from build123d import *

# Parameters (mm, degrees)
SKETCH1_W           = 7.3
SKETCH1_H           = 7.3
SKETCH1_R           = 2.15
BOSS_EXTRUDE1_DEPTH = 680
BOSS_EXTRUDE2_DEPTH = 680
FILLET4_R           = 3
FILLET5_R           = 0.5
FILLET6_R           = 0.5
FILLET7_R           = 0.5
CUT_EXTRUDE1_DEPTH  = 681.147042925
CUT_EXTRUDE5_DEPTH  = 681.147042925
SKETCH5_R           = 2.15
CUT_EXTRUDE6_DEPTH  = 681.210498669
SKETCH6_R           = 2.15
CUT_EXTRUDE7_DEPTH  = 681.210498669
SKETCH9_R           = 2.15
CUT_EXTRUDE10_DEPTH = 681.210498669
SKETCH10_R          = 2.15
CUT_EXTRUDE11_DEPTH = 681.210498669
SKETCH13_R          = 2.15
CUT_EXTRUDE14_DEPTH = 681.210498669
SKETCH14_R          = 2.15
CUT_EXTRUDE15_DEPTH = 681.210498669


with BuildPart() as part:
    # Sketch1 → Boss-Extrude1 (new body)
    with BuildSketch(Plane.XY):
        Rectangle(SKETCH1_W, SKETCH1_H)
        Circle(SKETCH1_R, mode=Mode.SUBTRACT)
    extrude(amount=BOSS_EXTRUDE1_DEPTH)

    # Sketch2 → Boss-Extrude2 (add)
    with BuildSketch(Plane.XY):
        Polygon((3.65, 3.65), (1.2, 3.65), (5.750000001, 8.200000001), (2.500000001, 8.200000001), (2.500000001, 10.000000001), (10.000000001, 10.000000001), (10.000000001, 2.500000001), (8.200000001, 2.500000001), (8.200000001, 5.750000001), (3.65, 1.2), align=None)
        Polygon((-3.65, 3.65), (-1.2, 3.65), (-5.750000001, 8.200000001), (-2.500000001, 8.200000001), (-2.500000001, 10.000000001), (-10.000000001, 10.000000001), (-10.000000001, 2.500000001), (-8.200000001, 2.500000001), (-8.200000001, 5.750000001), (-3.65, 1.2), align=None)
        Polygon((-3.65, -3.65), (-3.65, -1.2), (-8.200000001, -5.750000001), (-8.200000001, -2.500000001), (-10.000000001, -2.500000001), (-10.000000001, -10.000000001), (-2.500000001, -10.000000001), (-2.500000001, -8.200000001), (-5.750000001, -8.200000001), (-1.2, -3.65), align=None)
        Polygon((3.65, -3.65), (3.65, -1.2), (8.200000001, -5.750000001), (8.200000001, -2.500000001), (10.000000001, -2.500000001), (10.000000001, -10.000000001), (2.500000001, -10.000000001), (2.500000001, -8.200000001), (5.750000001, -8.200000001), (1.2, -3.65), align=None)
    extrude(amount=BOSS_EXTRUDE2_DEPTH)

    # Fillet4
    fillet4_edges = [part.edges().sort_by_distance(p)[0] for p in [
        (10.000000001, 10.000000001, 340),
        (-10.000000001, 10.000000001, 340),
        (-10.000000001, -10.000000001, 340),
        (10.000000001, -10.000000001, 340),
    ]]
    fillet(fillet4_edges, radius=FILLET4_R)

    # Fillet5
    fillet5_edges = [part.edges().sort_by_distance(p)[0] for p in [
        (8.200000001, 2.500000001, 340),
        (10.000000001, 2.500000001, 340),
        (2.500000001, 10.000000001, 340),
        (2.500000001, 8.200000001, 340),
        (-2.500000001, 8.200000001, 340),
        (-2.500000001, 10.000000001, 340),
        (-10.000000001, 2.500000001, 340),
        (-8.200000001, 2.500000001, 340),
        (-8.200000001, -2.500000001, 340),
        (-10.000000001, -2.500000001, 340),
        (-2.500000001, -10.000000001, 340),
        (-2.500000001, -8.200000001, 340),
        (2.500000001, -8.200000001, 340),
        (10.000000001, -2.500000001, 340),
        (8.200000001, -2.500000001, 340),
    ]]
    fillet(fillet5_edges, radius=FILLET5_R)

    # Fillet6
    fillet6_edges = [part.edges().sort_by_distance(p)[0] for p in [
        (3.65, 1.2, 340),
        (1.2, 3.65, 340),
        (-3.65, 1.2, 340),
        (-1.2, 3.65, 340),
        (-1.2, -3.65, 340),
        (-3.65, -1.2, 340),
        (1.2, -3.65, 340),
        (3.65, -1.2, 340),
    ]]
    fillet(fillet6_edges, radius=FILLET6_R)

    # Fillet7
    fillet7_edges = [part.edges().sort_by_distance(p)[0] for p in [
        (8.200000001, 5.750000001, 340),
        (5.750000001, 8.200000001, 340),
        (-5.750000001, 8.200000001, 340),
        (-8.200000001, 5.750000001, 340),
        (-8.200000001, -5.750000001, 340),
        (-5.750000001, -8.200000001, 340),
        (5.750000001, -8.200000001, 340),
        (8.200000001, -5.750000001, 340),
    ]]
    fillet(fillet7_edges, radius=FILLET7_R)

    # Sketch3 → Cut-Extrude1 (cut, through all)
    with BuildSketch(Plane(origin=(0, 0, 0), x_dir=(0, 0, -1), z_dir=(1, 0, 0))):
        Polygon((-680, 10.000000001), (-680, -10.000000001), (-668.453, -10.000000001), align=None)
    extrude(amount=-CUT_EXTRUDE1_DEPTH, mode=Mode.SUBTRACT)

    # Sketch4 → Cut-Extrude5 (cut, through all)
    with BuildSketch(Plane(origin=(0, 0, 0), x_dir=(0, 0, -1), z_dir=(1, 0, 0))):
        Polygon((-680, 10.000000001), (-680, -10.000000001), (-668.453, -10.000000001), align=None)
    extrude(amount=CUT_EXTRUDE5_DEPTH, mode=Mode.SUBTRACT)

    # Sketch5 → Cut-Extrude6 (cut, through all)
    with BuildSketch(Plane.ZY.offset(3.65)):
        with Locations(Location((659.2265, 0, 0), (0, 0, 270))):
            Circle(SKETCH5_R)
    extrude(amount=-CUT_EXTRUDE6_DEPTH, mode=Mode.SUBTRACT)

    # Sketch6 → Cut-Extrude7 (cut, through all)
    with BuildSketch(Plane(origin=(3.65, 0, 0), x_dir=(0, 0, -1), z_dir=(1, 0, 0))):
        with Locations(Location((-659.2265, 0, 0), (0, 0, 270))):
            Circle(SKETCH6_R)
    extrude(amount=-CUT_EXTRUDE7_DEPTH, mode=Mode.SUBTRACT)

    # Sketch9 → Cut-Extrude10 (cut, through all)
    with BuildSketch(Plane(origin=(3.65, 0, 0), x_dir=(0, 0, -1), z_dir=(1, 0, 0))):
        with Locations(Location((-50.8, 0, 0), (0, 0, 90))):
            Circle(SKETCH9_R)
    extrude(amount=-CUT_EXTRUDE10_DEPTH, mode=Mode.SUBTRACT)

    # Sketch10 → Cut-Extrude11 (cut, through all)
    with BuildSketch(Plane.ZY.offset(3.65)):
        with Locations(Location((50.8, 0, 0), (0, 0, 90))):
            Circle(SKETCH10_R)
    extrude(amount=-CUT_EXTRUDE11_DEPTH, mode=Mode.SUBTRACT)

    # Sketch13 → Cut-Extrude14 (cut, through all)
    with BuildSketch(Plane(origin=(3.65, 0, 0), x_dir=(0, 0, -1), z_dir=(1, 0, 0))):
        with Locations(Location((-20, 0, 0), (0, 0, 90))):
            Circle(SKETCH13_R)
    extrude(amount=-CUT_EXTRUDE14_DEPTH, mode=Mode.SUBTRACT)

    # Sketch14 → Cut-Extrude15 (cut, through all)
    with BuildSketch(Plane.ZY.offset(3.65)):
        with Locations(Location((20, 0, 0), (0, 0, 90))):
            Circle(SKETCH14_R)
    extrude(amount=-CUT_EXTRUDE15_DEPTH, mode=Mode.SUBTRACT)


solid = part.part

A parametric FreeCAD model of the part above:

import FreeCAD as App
import Part
import Sketcher

V = App.Vector
Q = App.Units.Quantity


def edges_at(feature, points):
    """Names of the edges that pass closest to the given points."""
    edges = feature.Shape.Edges
    near = lambda p: min(range(len(edges)), key=lambda i: edges[i].distToShape(Part.Vertex(*p))[0])
    return sorted({f"Edge{near(p) + 1}" for p in points})


def add_polygon(sketch, points):
    """Adds a closed chain of lines whose ends are joined by coincident constraints."""
    first, n = sketch.GeometryCount, len(points)
    for a, b in zip(points, points[1:] + points[:1]):
        sketch.addGeometry(Part.LineSegment(App.Vector(*a, 0), App.Vector(*b, 0)), False)
    for i in range(n):
        sketch.addConstraint(Sketcher.Constraint("Coincident", first + i, 2, first + (i + 1) % n, 1))

doc = App.newDocument("Part")
params = doc.addObject("Spreadsheet::Sheet", "Params")
for row, (alias, value) in enumerate([
    ("sketch1_diameter", "4.3 mm"),
    ("sketch1_width", "7.3 mm"),
    ("pad1_length", "680 mm"),
    ("sketch2_width", "1.8 mm"),
    ("sketch2_width2", "7.5 mm"),
    ("sketch2_width3", "2.45 mm"),
    ("pad2_length", "680 mm"),
    ("fillet_radius", "3 mm"),
    ("fillet2_radius", "0.5 mm"),
    ("fillet3_radius", "0.5 mm"),
    ("fillet4_radius", "0.5 mm"),
    ("sketch3_width", "20 mm"),
    ("sketch4_width", "20 mm"),
    ("sketch5_diameter", "4.3 mm"),
    ("sketch6_diameter", "4.3 mm"),
    ("sketch7_diameter", "4.3 mm"),
    ("sketch8_diameter", "4.3 mm"),
    ("sketch9_diameter", "4.3 mm"),
    ("sketch10_diameter", "4.3 mm"),
], start=1):
    params.set(f"A{row}", alias)
    params.set(f"B{row}", "=" + value)
    params.setAlias(f"B{row}", alias)

body = doc.addObject("PartDesign::Body", "Body")

# Sketch on XY plane
sketch1 = body.newObject("Sketcher::SketchObject", "Sketch")
sketch1.AttachmentSupport = (doc.getObject("XY_Plane"), [""])
sketch1.MapMode = "FlatFace"
add_polygon(sketch1, [(-3.6, 3.6), (-3.6, -3.6), (3.6, -3.6), (3.6, 3.6)])  # lines 0-3
sketch1.addGeometry(Part.Circle(V(0, 0, 0), V(0, 0, 1), 2.1), False)  # 4
sketch1.addConstraint(Sketcher.Constraint("Vertical", 0))
sketch1.addConstraint(Sketcher.Constraint("Horizontal", 1))
sketch1.addConstraint(Sketcher.Constraint("Vertical", 2))
sketch1.addConstraint(Sketcher.Constraint("Horizontal", 3))
sketch1.addConstraint(Sketcher.Constraint("Coincident", 4, 3, -1, 1))
sketch1.addConstraint(Sketcher.Constraint("Symmetric", 0, 2, 2, 2, -1, 1))
sketch1.addConstraint(Sketcher.Constraint("Equal", 3, 0))
sketch1.addConstraint(Sketcher.Constraint("Diameter", 4, 4.3))
sketch1.addConstraint(Sketcher.Constraint("DistanceX", 1, 1, 1, 2, 7.3))
sketch1.setExpression("Constraints[11]", "Params.sketch1_diameter")
sketch1.setExpression("Constraints[12]", "Params.sketch1_width")
pad1 = body.newObject("PartDesign::Pad", "Pad")
pad1.Profile = sketch1
pad1.setExpression("Length", "Params.pad1_length")

# Sketch on XY plane
sketch2 = body.newObject("Sketcher::SketchObject", "Sketch001")
sketch2.AttachmentSupport = (doc.getObject("XY_Plane"), [""])
sketch2.MapMode = "FlatFace"
add_polygon(sketch2, [(1.2, 3.6), (3.6, 3.6), (3.6, 1.2), (8.2, 5.8), (8.2, 2.5), (10, 2.5), (10, 10), (2.5, 10), (2.5, 8.2), (5.8, 8.2)])  # lines 0-9
add_polygon(sketch2, [(-3.6, 3.6), (-1.2, 3.6), (-5.8, 8.2), (-2.5, 8.2), (-2.5, 10), (-10, 10), (-10, 2.5), (-8.2, 2.5), (-8.2, 5.8), (-3.6, 1.2)])  # lines 10-19
add_polygon(sketch2, [(-3.6, -3.6), (-3.6, -1.2), (-8.2, -5.8), (-8.2, -2.5), (-10, -2.5), (-10, -10), (-2.5, -10), (-2.5, -8.2), (-5.8, -8.2), (-1.2, -3.6)])  # lines 20-29
add_polygon(sketch2, [(3.6, -1.2), (3.6, -3.6), (1.2, -3.6), (5.8, -8.2), (2.5, -8.2), (2.5, -10), (10, -10), (10, -2.5), (8.2, -2.5), (8.2, -5.8)])  # lines 30-39
sketch2.addConstraint(Sketcher.Constraint("Horizontal", 0))
sketch2.addConstraint(Sketcher.Constraint("Vertical", 1))
sketch2.addConstraint(Sketcher.Constraint("Vertical", 3))
sketch2.addConstraint(Sketcher.Constraint("Horizontal", 4))
sketch2.addConstraint(Sketcher.Constraint("Vertical", 5))
sketch2.addConstraint(Sketcher.Constraint("Horizontal", 6))
sketch2.addConstraint(Sketcher.Constraint("Vertical", 7))
sketch2.addConstraint(Sketcher.Constraint("Horizontal", 8))
sketch2.addConstraint(Sketcher.Constraint("Horizontal", 10))
sketch2.addConstraint(Sketcher.Constraint("Horizontal", 12))
sketch2.addConstraint(Sketcher.Constraint("Vertical", 13))
sketch2.addConstraint(Sketcher.Constraint("Horizontal", 14))
sketch2.addConstraint(Sketcher.Constraint("Vertical", 15))
sketch2.addConstraint(Sketcher.Constraint("Horizontal", 16))
sketch2.addConstraint(Sketcher.Constraint("Vertical", 17))
sketch2.addConstraint(Sketcher.Constraint("Vertical", 19))
sketch2.addConstraint(Sketcher.Constraint("Vertical", 20))
sketch2.addConstraint(Sketcher.Constraint("Vertical", 22))
sketch2.addConstraint(Sketcher.Constraint("Horizontal", 23))
sketch2.addConstraint(Sketcher.Constraint("Vertical", 24))
sketch2.addConstraint(Sketcher.Constraint("Horizontal", 25))
sketch2.addConstraint(Sketcher.Constraint("Vertical", 26))
sketch2.addConstraint(Sketcher.Constraint("Horizontal", 27))
sketch2.addConstraint(Sketcher.Constraint("Horizontal", 29))
sketch2.addConstraint(Sketcher.Constraint("Vertical", 30))
sketch2.addConstraint(Sketcher.Constraint("Horizontal", 31))
sketch2.addConstraint(Sketcher.Constraint("Horizontal", 33))
sketch2.addConstraint(Sketcher.Constraint("Vertical", 34))
sketch2.addConstraint(Sketcher.Constraint("Horizontal", 35))
sketch2.addConstraint(Sketcher.Constraint("Vertical", 36))
sketch2.addConstraint(Sketcher.Constraint("Horizontal", 37))
sketch2.addConstraint(Sketcher.Constraint("Vertical", 38))
sketch2.addConstraint(Sketcher.Constraint("Symmetric", 1, 2, 20, 2, -1, 1))
sketch2.addConstraint(Sketcher.Constraint("Symmetric", 2, 2, 21, 2, -1, 1))
sketch2.addConstraint(Sketcher.Constraint("Symmetric", 4, 2, 23, 2, -1, 1))
sketch2.addConstraint(Sketcher.Constraint("Symmetric", 6, 2, 25, 2, -1, 1))
sketch2.addConstraint(Sketcher.Constraint("Symmetric", 8, 2, 27, 2, -1, 1))
sketch2.addConstraint(Sketcher.Constraint("Symmetric", 9, 2, 28, 2, -1, 1))
sketch2.addConstraint(Sketcher.Constraint("Symmetric", 19, 2, 30, 2, -1, 1))
sketch2.addConstraint(Sketcher.Constraint("Symmetric", 11, 2, 32, 2, -1, 1))
sketch2.addConstraint(Sketcher.Constraint("Symmetric", 13, 2, 34, 2, -1, 1))
sketch2.addConstraint(Sketcher.Constraint("Symmetric", 15, 2, 36, 2, -1, 1))
sketch2.addConstraint(Sketcher.Constraint("Symmetric", 17, 2, 38, 2, -1, 1))
sketch2.addConstraint(Sketcher.Constraint("Symmetric", 9, 2, 10, 2, -2))
sketch2.addConstraint(Sketcher.Constraint("Symmetric", 8, 2, 11, 2, -2))
sketch2.addConstraint(Sketcher.Constraint("Symmetric", 6, 2, 13, 2, -2))
sketch2.addConstraint(Sketcher.Constraint("Symmetric", 4, 2, 15, 2, -2))
sketch2.addConstraint(Sketcher.Constraint("Symmetric", 2, 2, 17, 2, -2))
sketch2.addConstraint(Sketcher.Constraint("Symmetric", 1, 2, 18, 2, -2))
sketch2.addConstraint(Sketcher.Constraint("Parallel", 2, 9))
sketch2.addConstraint(Sketcher.Constraint("Perpendicular", 9, 11))
sketch2.addConstraint(Sketcher.Constraint("Perpendicular", 28, 32))
sketch2.addConstraint(Sketcher.Constraint("Parallel", 32, 39))
sketch2.addConstraint(Sketcher.Constraint("Equal", 31, 1))
sketch2.addConstraint(Sketcher.Constraint("Equal", 33, 3))
sketch2.addConstraint(Sketcher.Constraint("Equal", 35, 5))
sketch2.addConstraint(Sketcher.Constraint("Equal", 37, 7))
sketch2.addConstraint(Sketcher.Constraint("DistanceX", 4, 1, 4, 2, 1.8))
sketch2.addConstraint(Sketcher.Constraint("DistanceX", 6, 2, 6, 1, 7.5))
sketch2.addConstraint(Sketcher.Constraint("DistanceX", -1, 1, 4, 2, 10.0))
sketch2.addConstraint(Sketcher.Constraint("DistanceY", -1, 1, 5, 2, 10.0))
sketch2.addConstraint(Sketcher.Constraint("DistanceY", 1, 2, 7, 2, 7.0))
sketch2.addConstraint(Sketcher.Constraint("DistanceX", 0, 1, 0, 2, 2.45))
sketch2.setExpression("Constraints[97]", "Params.sketch2_width")
sketch2.setExpression("Constraints[98]", "Params.sketch2_width2")
sketch2.setExpression("Constraints[102]", "Params.sketch2_width3")
pad2 = body.newObject("PartDesign::Pad", "Pad001")
pad2.Profile = sketch2
pad2.setExpression("Length", "Params.pad2_length")
doc.recompute()

fillet = body.newObject("PartDesign::Fillet", "Fillet")
fillet.Base = (pad2, edges_at(pad2, [
    (10, 10, 340),
    (-10, 10, 340),
    (-10, -10, 340),
    (10, -10, 340),
]))
fillet.setExpression("Radius", "Params.fillet_radius")
doc.recompute()

fillet2 = body.newObject("PartDesign::Fillet", "Fillet001")
fillet2.Base = (fillet, edges_at(fillet, [
    (8.2, 2.5, 340),
    (10, 2.5, 340),
    (2.5, 10, 340),
    (2.5, 8.2, 340),
    (-2.5, 8.2, 340),
    (-2.5, 10, 340),
    (-10, 2.5, 340),
    (-8.2, 2.5, 340),
    (-8.2, -2.5, 340),
    (-10, -2.5, 340),
    (-2.5, -10, 340),
    (-2.5, -8.2, 340),
    (2.5, -8.2, 340),
    (10, -2.5, 340),
    (8.2, -2.5, 340),
]))
fillet2.setExpression("Radius", "Params.fillet2_radius")
doc.recompute()

fillet3 = body.newObject("PartDesign::Fillet", "Fillet002")
fillet3.Base = (fillet2, edges_at(fillet2, [
    (3.65, 1.2, 340),
    (1.2, 3.65, 340),
    (-3.65, 1.2, 340),
    (-1.2, 3.65, 340),
    (-1.2, -3.65, 340),
    (-3.65, -1.2, 340),
    (1.2, -3.65, 340),
    (3.65, -1.2, 340),
]))
fillet3.setExpression("Radius", "Params.fillet3_radius")
doc.recompute()

fillet4 = body.newObject("PartDesign::Fillet", "Fillet003")
fillet4.Base = (fillet3, edges_at(fillet3, [
    (8.2, 5.75, 340),
    (5.75, 8.2, 340),
    (-5.75, 8.2, 340),
    (-8.2, 5.75, 340),
    (-8.2, -5.75, 340),
    (-5.75, -8.2, 340),
    (5.75, -8.2, 340),
    (8.2, -5.75, 340),
]))
fillet4.setExpression("Radius", "Params.fillet4_radius")

# Sketch on YZ plane
sketch3 = body.newObject("Sketcher::SketchObject", "Sketch002")
sketch3.AttachmentSupport = (doc.getObject("YZ_Plane"), [""])
sketch3.MapMode = "FlatFace"
add_polygon(sketch3, [(10, 680), (-10, 680), (-10, 668)])  # lines 0-2
sketch3.addConstraint(Sketcher.Constraint("Horizontal", 0))
sketch3.addConstraint(Sketcher.Constraint("Vertical", 1))
sketch3.addConstraint(Sketcher.Constraint("DistanceX", 0, 2, 0, 1, 20.0))
sketch3.addConstraint(Sketcher.Constraint("Angle", 2, Q("29.999988 deg")))
sketch3.addConstraint(Sketcher.Constraint("DistanceX", 0, 2, -1, 1, 10.0))
sketch3.addConstraint(Sketcher.Constraint("DistanceY", -1, 1, 0, 2, 680.0))
sketch3.setExpression("Constraints[5]", "Params.sketch3_width")
pocket1 = body.newObject("PartDesign::Pocket", "Pocket")
pocket1.Profile = sketch3
pocket1.Type = "ThroughAll"

# Sketch on YZ plane
sketch4 = body.newObject("Sketcher::SketchObject", "Sketch003")
sketch4.AttachmentSupport = (doc.getObject("YZ_Plane"), [""])
sketch4.MapMode = "FlatFace"
add_polygon(sketch4, [(10, 680), (-10, 680), (-10, 668)])  # lines 0-2
sketch4.addConstraint(Sketcher.Constraint("Horizontal", 0))
sketch4.addConstraint(Sketcher.Constraint("Vertical", 1))
sketch4.addConstraint(Sketcher.Constraint("DistanceX", 0, 2, 0, 1, 20.0))
sketch4.addConstraint(Sketcher.Constraint("Angle", 2, Q("29.999988 deg")))
sketch4.addConstraint(Sketcher.Constraint("DistanceX", 0, 2, -1, 1, 10.0))
sketch4.addConstraint(Sketcher.Constraint("DistanceY", -1, 1, 0, 2, 680.0))
sketch4.setExpression("Constraints[5]", "Params.sketch4_width")
pocket2 = body.newObject("PartDesign::Pocket", "Pocket001")
pocket2.Profile = sketch4
pocket2.Type = "ThroughAll"
pocket2.Reversed = True

# Sketch on YZ plane
sketch5 = body.newObject("Sketcher::SketchObject", "Sketch004")
sketch5.AttachmentSupport = (doc.getObject("YZ_Plane"), [""])
sketch5.MapMode = "FlatFace"
sketch5.AttachmentOffset = App.Placement(V(0, 0, -3.65), App.Rotation())
sketch5.addGeometry(Part.Circle(V(0, 659.2, 0), V(0, 0, 1), 2.1), False)
sketch5.addConstraint(Sketcher.Constraint("PointOnObject", 0, 3, -2))
sketch5.addConstraint(Sketcher.Constraint("Diameter", 0, 4.3))
sketch5.addConstraint(Sketcher.Constraint("DistanceY", -1, 1, 0, 3, 659.2265))
sketch5.setExpression("Constraints[1]", "Params.sketch5_diameter")
pocket3 = body.newObject("PartDesign::Pocket", "Pocket002")
pocket3.Profile = sketch5
pocket3.Type = "ThroughAll"
pocket3.Reversed = True

# Sketch on YZ plane
sketch6 = body.newObject("Sketcher::SketchObject", "Sketch005")
sketch6.AttachmentSupport = (doc.getObject("YZ_Plane"), [""])
sketch6.MapMode = "FlatFace"
sketch6.AttachmentOffset = App.Placement(V(0, 0, 3.65), App.Rotation())
sketch6.addGeometry(Part.Circle(V(0, 659.2, 0), V(0, 0, 1), 2.1), False)
sketch6.addConstraint(Sketcher.Constraint("PointOnObject", 0, 3, -2))
sketch6.addConstraint(Sketcher.Constraint("Diameter", 0, 4.3))
sketch6.addConstraint(Sketcher.Constraint("DistanceY", -1, 1, 0, 3, 659.2265))
sketch6.setExpression("Constraints[1]", "Params.sketch6_diameter")
pocket4 = body.newObject("PartDesign::Pocket", "Pocket003")
pocket4.Profile = sketch6
pocket4.Type = "ThroughAll"

# Sketch on YZ plane
sketch7 = body.newObject("Sketcher::SketchObject", "Sketch006")
sketch7.AttachmentSupport = (doc.getObject("YZ_Plane"), [""])
sketch7.MapMode = "FlatFace"
sketch7.AttachmentOffset = App.Placement(V(0, 0, 3.65), App.Rotation())
sketch7.addGeometry(Part.Circle(V(0, 50.8, 0), V(0, 0, 1), 2.1), False)
sketch7.addConstraint(Sketcher.Constraint("PointOnObject", 0, 3, -2))
sketch7.addConstraint(Sketcher.Constraint("Diameter", 0, 4.3))
sketch7.addConstraint(Sketcher.Constraint("DistanceY", -1, 1, 0, 3, 50.8))
sketch7.setExpression("Constraints[1]", "Params.sketch7_diameter")
pocket5 = body.newObject("PartDesign::Pocket", "Pocket004")
pocket5.Profile = sketch7
pocket5.Type = "ThroughAll"

# Sketch on YZ plane
sketch8 = body.newObject("Sketcher::SketchObject", "Sketch007")
sketch8.AttachmentSupport = (doc.getObject("YZ_Plane"), [""])
sketch8.MapMode = "FlatFace"
sketch8.AttachmentOffset = App.Placement(V(0, 0, -3.65), App.Rotation())
sketch8.addGeometry(Part.Circle(V(0, 50.8, 0), V(0, 0, 1), 2.1), False)
sketch8.addConstraint(Sketcher.Constraint("PointOnObject", 0, 3, -2))
sketch8.addConstraint(Sketcher.Constraint("Diameter", 0, 4.3))
sketch8.addConstraint(Sketcher.Constraint("DistanceY", -1, 1, 0, 3, 50.8))
sketch8.setExpression("Constraints[1]", "Params.sketch8_diameter")
pocket6 = body.newObject("PartDesign::Pocket", "Pocket005")
pocket6.Profile = sketch8
pocket6.Type = "ThroughAll"
pocket6.Reversed = True

# Sketch on YZ plane
sketch9 = body.newObject("Sketcher::SketchObject", "Sketch008")
sketch9.AttachmentSupport = (doc.getObject("YZ_Plane"), [""])
sketch9.MapMode = "FlatFace"
sketch9.AttachmentOffset = App.Placement(V(0, 0, 3.65), App.Rotation())
sketch9.addGeometry(Part.Circle(V(0, 20, 0), V(0, 0, 1), 2.1), False)
sketch9.addConstraint(Sketcher.Constraint("PointOnObject", 0, 3, -2))
sketch9.addConstraint(Sketcher.Constraint("Diameter", 0, 4.3))
sketch9.addConstraint(Sketcher.Constraint("DistanceY", -1, 1, 0, 3, 20.0))
sketch9.setExpression("Constraints[1]", "Params.sketch9_diameter")
pocket7 = body.newObject("PartDesign::Pocket", "Pocket006")
pocket7.Profile = sketch9
pocket7.Type = "ThroughAll"

# Sketch on YZ plane
sketch10 = body.newObject("Sketcher::SketchObject", "Sketch009")
sketch10.AttachmentSupport = (doc.getObject("YZ_Plane"), [""])
sketch10.MapMode = "FlatFace"
sketch10.AttachmentOffset = App.Placement(V(0, 0, -3.65), App.Rotation())
sketch10.addGeometry(Part.Circle(V(0, 20, 0), V(0, 0, 1), 2.1), False)
sketch10.addConstraint(Sketcher.Constraint("PointOnObject", 0, 3, -2))
sketch10.addConstraint(Sketcher.Constraint("Diameter", 0, 4.3))
sketch10.addConstraint(Sketcher.Constraint("DistanceY", -1, 1, 0, 3, 20.0))
sketch10.setExpression("Constraints[1]", "Params.sketch10_diameter")
pocket8 = body.newObject("PartDesign::Pocket", "Pocket007")
pocket8.Profile = sketch10
pocket8.Type = "ThroughAll"
pocket8.Reversed = True

doc.recompute()
